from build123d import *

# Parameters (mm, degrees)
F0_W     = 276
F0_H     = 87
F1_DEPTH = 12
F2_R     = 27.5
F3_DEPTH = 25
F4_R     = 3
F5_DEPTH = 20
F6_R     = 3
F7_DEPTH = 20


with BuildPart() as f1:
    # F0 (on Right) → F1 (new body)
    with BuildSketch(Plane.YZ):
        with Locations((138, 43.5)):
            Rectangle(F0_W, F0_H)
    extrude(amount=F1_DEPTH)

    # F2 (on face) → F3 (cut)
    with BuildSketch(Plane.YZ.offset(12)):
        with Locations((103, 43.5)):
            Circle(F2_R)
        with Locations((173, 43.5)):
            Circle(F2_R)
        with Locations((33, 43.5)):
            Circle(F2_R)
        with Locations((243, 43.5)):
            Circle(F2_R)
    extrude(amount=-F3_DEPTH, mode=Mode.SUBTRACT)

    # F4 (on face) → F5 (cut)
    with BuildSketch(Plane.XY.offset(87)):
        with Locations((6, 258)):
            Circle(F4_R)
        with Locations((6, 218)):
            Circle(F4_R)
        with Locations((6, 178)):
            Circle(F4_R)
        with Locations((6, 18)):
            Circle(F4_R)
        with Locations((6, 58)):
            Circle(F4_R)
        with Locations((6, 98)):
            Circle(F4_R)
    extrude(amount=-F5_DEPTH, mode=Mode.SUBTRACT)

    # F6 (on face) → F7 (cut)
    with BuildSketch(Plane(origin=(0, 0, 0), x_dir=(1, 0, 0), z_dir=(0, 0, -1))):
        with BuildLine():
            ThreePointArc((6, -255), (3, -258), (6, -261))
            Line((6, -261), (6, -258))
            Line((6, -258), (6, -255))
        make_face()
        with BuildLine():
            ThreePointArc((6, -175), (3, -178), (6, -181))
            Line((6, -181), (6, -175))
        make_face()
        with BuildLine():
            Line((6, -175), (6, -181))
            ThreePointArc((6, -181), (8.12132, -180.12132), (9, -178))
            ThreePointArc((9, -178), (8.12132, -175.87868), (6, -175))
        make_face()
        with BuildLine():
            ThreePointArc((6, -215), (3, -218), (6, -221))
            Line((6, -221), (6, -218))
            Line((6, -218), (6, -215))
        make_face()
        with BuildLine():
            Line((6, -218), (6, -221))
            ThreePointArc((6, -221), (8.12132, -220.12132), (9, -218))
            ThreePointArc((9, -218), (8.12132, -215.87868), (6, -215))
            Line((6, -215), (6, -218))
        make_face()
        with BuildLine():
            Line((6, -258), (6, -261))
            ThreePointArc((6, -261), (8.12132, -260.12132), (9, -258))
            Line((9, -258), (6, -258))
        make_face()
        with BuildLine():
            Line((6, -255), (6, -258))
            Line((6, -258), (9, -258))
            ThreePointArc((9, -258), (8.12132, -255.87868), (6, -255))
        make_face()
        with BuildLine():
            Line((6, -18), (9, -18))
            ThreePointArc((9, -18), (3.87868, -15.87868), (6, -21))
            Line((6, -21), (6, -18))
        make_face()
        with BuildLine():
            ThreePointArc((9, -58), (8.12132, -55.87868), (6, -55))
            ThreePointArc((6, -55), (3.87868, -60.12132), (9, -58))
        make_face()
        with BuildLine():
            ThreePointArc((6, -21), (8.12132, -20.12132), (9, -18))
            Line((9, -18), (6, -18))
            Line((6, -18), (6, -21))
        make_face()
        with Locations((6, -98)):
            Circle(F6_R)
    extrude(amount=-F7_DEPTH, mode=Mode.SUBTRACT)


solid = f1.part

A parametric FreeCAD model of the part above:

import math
import FreeCAD as App
import Part
import Sketcher

V = App.Vector
Q = App.Units.Quantity


def add_polygon(sketch, points):
    """Adds a closed chain of lines whose ends are joined by coincident constraints."""
    first, n = sketch.GeometryCount, len(points)
    for a, b in zip(points, points[1:] + points[:1]):
        sketch.addGeometry(Part.LineSegment(App.Vector(*a, 0), App.Vector(*b, 0)), False)
    for i in range(n):
        sketch.addConstraint(Sketcher.Constraint("Coincident", first + i, 2, first + (i + 1) % n, 1))

doc = App.newDocument("Part")
body = doc.addObject("PartDesign::Body", "Body")

# Sketch on YZ plane
sketch1 = doc.addObject("Sketcher::SketchObject", "Sketch")
body.addObject(sketch1)
sketch1.AttachmentSupport = (doc.YZ_Plane, [""])
sketch1.MapMode = "FlatFace"
add_polygon(sketch1, [(0, 87), (0, 0), (276, 0), (276, 87)])  # lines 0-3
sketch1.addConstraint([
    Sketcher.Constraint("Vertical", 0),
    Sketcher.Constraint("Horizontal", 1),
    Sketcher.Constraint("Vertical", 2),
    Sketcher.Constraint("Horizontal", 3),
    Sketcher.Constraint("Coincident", 0, 2, -1, 1),
    Sketcher.Constraint("DistanceX", 1, 1, 1, 2, Q("276 mm")),
    Sketcher.Constraint("DistanceY", 0, 2, 0, 1, Q("87 mm")),
])
pad1 = doc.addObject("PartDesign::Pad", "Pad")
body.addObject(pad1)
pad1.Profile = sketch1
pad1.Length = 12

# Sketch on YZ plane
sketch2 = doc.addObject("Sketcher::SketchObject", "Sketch001")
body.addObject(sketch2)
sketch2.AttachmentSupport = (doc.YZ_Plane, [""])
sketch2.MapMode = "FlatFace"
sketch2.AttachmentOffset = App.Placement(V(0, 0, 12), App.Rotation())
sketch2.addGeometry([
    Part.Circle(V(103, 44, 0), V(0, 0, 1), 28),
    Part.Circle(V(173, 44, 0), V(0, 0, 1), 28),
    Part.Circle(V(33, 44, 0), V(0, 0, 1), 28),
    Part.Circle(V(243, 44, 0), V(0, 0, 1), 28),
], False)
sketch2.addConstraint([
    Sketcher.Constraint("Equal", 0, 1),
    Sketcher.Constraint("Equal", 1, 2),
    Sketcher.Constraint("Equal", 2, 3),
    Sketcher.Constraint("Horizontal", 0, 3, 1, 3),
    Sketcher.Constraint("Horizontal", 1, 3, 2, 3),
    Sketcher.Constraint("Horizontal", 2, 3, 3, 3),
    Sketcher.Constraint("Diameter", 0, Q("55 mm")),
    Sketcher.Constraint("DistanceX", -1, 1, 0, 3, Q("103 mm")),
    Sketcher.Constraint("DistanceX", -1, 1, 1, 3, Q("173 mm")),
    Sketcher.Constraint("DistanceX", -1, 1, 2, 3, Q("33 mm")),
    Sketcher.Constraint("DistanceX", -1, 1, 3, 3, Q("243 mm")),
    Sketcher.Constraint("DistanceY", -1, 1, 0, 3, Q("43.5 mm")),
])
pocket1 = doc.addObject("PartDesign::Pocket", "Pocket")
body.addObject(pocket1)
pocket1.Profile = sketch2
pocket1.Length = 25

# Sketch on XY plane
sketch3 = doc.addObject("Sketcher::SketchObject", "Sketch002")
body.addObject(sketch3)
sketch3.AttachmentSupport = (doc.XY_Plane, [""])
sketch3.MapMode = "FlatFace"
sketch3.AttachmentOffset = App.Placement(V(0, 0, 87), App.Rotation())
sketch3.addGeometry([
    Part.Circle(V(6, 258, 0), V(0, 0, 1), 3),  # 0
    Part.Circle(V(6, 218, 0), V(0, 0, 1), 3),  # 1
    Part.Circle(V(6, 178, 0), V(0, 0, 1), 3),  # 2
    Part.Circle(V(6, 18, 0), V(0, 0, 1), 3),  # 3
    Part.Circle(V(6, 58, 0), V(0, 0, 1), 3),  # 4
    Part.Circle(V(6, 98, 0), V(0, 0, 1), 3),  # 5
], False)
sketch3.addConstraint([
    Sketcher.Constraint("Equal", 0, 1),
    Sketcher.Constraint("Equal", 1, 2),
    Sketcher.Constraint("Equal", 2, 3),
    Sketcher.Constraint("Equal", 3, 4),
    Sketcher.Constraint("Equal", 4, 5),
    Sketcher.Constraint("Vertical", 0, 3, 1, 3),
    Sketcher.Constraint("Vertical", 1, 3, 2, 3),
    Sketcher.Constraint("Vertical", 2, 3, 3, 3),
    Sketcher.Constraint("Vertical", 3, 3, 4, 3),
    Sketcher.Constraint("Vertical", 4, 3, 5, 3),
    Sketcher.Constraint("Diameter", 0, Q("6 mm")),
    Sketcher.Constraint("DistanceX", -1, 1, 0, 3, Q("6 mm")),
    Sketcher.Constraint("DistanceY", -1, 1, 0, 3, Q("258 mm")),
    Sketcher.Constraint("DistanceY", -1, 1, 1, 3, Q("218 mm")),
    Sketcher.Constraint("DistanceY", -1, 1, 2, 3, Q("178 mm")),
    Sketcher.Constraint("DistanceY", -1, 1, 3, 3, Q("18 mm")),
    Sketcher.Constraint("DistanceY", -1, 1, 4, 3, Q("58 mm")),
    Sketcher.Constraint("DistanceY", -1, 1, 5, 3, Q("98 mm")),
])
pocket2 = doc.addObject("PartDesign::Pocket", "Pocket001")
body.addObject(pocket2)
pocket2.Profile = sketch3
pocket2.Length = 20

# Sketch on XY plane
sketch4 = doc.addObject("Sketcher::SketchObject", "Sketch003")
body.addObject(sketch4)
sketch4.AttachmentSupport = (doc.XY_Plane, [""])
sketch4.MapMode = "FlatFace"
sketch4.addGeometry([
    Part.ArcOfCircle(Part.Circle(V(6, 258, 0), V(0, 0, 1), 3), math.radians(90), math.radians(270)),  # 0
    Part.ArcOfCircle(Part.Circle(V(6, 258, 0), V(0, 0, 1), 3), math.radians(0), math.radians(90)),  # 1
    Part.ArcOfCircle(Part.Circle(V(6, 258, 0), V(0, 0, 1), 3), math.radians(-90), math.radians(0)),  # 2
    Part.ArcOfCircle(Part.Circle(V(6, 178, 0), V(0, 0, 1), 3), math.radians(90), math.radians(270)),  # 3
    Part.ArcOfCircle(Part.Circle(V(6, 178, 0), V(0, 0, 1), 3), math.radians(0), math.radians(90)),  # 4
    Part.ArcOfCircle(Part.Circle(V(6, 178, 0), V(0, 0, 1), 3), math.radians(-90), math.radians(0)),  # 5
    Part.ArcOfCircle(Part.Circle(V(6, 218, 0), V(0, 0, 1), 3), math.radians(90), math.radians(270)),  # 6
    Part.ArcOfCircle(Part.Circle(V(6, 218, 0), V(0, 0, 1), 3), math.radians(0), math.radians(90)),  # 7
    Part.ArcOfCircle(Part.Circle(V(6, 218, 0), V(0, 0, 1), 3), math.radians(-90), math.radians(0)),  # 8
    Part.ArcOfCircle(Part.Circle(V(6, 18, 0), V(0, 0, 1), 3), math.radians(90), math.radians(360)),  # 9
    Part.ArcOfCircle(Part.Circle(V(6, 18, 0), V(0, 0, 1), 3), math.radians(0), math.radians(90)),  # 10
    Part.ArcOfCircle(Part.Circle(V(6, 58, 0), V(0, 0, 1), 3), math.radians(-90), math.radians(0)),  # 11
    Part.ArcOfCircle(Part.Circle(V(6, 58, 0), V(0, 0, 1), 3), math.radians(0), math.radians(270)),  # 12
    Part.Circle(V(6, 98, 0), V(0, 0, 1), 3),  # 13
], False)
sketch4.addConstraint([
    Sketcher.Constraint("Tangent", 0, 1, 1, 2),
    Sketcher.Constraint("Tangent", 1, 1, 2, 2),
    Sketcher.Constraint("Tangent", 2, 1, 0, 2),
    Sketcher.Constraint("Tangent", 3, 1, 4, 2),
    Sketcher.Constraint("Tangent", 4, 1, 5, 2),
    Sketcher.Constraint("Tangent", 5, 1, 3, 2),
    Sketcher.Constraint("Tangent", 6, 1, 7, 2),
    Sketcher.Constraint("Tangent", 7, 1, 8, 2),
    Sketcher.Constraint("Tangent", 8, 1, 6, 2),
    Sketcher.Constraint("Tangent", 9, 1, 10, 2),
    Sketcher.Constraint("Coincident", 10, 1, 9, 2),
    Sketcher.Constraint("Tangent", 11, 1, 12, 2),
    Sketcher.Constraint("Coincident", 12, 1, 11, 2),
    Sketcher.Constraint("Equal", 2, 3),
    Sketcher.Constraint("Equal", 5, 6),
    Sketcher.Constraint("Equal", 8, 9),
    Sketcher.Constraint("Equal", 10, 11),
    Sketcher.Constraint("Equal", 12, 13),
    Sketcher.Constraint("Horizontal", 2, 3, 1, 1),
    Sketcher.Constraint("Horizontal", 5, 3, 4, 1),
    Sketcher.Constraint("Horizontal", 8, 3, 7, 1),
    Sketcher.Constraint("Horizontal", 9, 3, 10, 1),
    Sketcher.Constraint("Horizontal", 11, 3, 12, 1),
    Sketcher.Constraint("Vertical", 2, 3, 3, 3),
    Sketcher.Constraint("Vertical", 5, 3, 6, 3),
    Sketcher.Constraint("Vertical", 8, 3, 9, 3),
    Sketcher.Constraint("Vertical", 10, 3, 11, 3),
    Sketcher.Constraint("Vertical", 12, 3, 13, 3),
    Sketcher.Constraint("Vertical", 13, 3, 0, 1),
    Sketcher.Constraint("Vertical", 0, 1, 2, 1),
    Sketcher.Constraint("Vertical", 2, 1, 3, 1),
    Sketcher.Constraint("Vertical", 3, 1, 5, 1),
    Sketcher.Constraint("Vertical", 5, 1, 6, 1),
    Sketcher.Constraint("Vertical", 6, 1, 8, 1),
    Sketcher.Constraint("Vertical", 8, 1, 9, 1),
    Sketcher.Constraint("Vertical", 9, 1, 11, 1),
    Sketcher.Constraint("Diameter", 13, Q("6 mm")),
    Sketcher.Constraint("DistanceX", -1, 1, 0, 3, Q("6 mm")),
    Sketcher.Constraint("DistanceY", -1, 1, 0, 3, Q("258 mm")),
    Sketcher.Constraint("DistanceY", -1, 1, 3, 3, Q("178 mm")),
    Sketcher.Constraint("DistanceY", -1, 1, 6, 3, Q("218 mm")),
    Sketcher.Constraint("DistanceY", -1, 1, 9, 3, Q("18 mm")),
    Sketcher.Constraint("DistanceY", -1, 1, 11, 3, Q("58.000001 mm")),
    Sketcher.Constraint("DistanceY", -1, 1, 13, 3, Q("98 mm")),
])
pocket3 = doc.addObject("PartDesign::Pocket", "Pocket002")
body.addObject(pocket3)
pocket3.Profile = sketch4
pocket3.Length = 20
pocket3.Reversed = True

doc.recompute()
